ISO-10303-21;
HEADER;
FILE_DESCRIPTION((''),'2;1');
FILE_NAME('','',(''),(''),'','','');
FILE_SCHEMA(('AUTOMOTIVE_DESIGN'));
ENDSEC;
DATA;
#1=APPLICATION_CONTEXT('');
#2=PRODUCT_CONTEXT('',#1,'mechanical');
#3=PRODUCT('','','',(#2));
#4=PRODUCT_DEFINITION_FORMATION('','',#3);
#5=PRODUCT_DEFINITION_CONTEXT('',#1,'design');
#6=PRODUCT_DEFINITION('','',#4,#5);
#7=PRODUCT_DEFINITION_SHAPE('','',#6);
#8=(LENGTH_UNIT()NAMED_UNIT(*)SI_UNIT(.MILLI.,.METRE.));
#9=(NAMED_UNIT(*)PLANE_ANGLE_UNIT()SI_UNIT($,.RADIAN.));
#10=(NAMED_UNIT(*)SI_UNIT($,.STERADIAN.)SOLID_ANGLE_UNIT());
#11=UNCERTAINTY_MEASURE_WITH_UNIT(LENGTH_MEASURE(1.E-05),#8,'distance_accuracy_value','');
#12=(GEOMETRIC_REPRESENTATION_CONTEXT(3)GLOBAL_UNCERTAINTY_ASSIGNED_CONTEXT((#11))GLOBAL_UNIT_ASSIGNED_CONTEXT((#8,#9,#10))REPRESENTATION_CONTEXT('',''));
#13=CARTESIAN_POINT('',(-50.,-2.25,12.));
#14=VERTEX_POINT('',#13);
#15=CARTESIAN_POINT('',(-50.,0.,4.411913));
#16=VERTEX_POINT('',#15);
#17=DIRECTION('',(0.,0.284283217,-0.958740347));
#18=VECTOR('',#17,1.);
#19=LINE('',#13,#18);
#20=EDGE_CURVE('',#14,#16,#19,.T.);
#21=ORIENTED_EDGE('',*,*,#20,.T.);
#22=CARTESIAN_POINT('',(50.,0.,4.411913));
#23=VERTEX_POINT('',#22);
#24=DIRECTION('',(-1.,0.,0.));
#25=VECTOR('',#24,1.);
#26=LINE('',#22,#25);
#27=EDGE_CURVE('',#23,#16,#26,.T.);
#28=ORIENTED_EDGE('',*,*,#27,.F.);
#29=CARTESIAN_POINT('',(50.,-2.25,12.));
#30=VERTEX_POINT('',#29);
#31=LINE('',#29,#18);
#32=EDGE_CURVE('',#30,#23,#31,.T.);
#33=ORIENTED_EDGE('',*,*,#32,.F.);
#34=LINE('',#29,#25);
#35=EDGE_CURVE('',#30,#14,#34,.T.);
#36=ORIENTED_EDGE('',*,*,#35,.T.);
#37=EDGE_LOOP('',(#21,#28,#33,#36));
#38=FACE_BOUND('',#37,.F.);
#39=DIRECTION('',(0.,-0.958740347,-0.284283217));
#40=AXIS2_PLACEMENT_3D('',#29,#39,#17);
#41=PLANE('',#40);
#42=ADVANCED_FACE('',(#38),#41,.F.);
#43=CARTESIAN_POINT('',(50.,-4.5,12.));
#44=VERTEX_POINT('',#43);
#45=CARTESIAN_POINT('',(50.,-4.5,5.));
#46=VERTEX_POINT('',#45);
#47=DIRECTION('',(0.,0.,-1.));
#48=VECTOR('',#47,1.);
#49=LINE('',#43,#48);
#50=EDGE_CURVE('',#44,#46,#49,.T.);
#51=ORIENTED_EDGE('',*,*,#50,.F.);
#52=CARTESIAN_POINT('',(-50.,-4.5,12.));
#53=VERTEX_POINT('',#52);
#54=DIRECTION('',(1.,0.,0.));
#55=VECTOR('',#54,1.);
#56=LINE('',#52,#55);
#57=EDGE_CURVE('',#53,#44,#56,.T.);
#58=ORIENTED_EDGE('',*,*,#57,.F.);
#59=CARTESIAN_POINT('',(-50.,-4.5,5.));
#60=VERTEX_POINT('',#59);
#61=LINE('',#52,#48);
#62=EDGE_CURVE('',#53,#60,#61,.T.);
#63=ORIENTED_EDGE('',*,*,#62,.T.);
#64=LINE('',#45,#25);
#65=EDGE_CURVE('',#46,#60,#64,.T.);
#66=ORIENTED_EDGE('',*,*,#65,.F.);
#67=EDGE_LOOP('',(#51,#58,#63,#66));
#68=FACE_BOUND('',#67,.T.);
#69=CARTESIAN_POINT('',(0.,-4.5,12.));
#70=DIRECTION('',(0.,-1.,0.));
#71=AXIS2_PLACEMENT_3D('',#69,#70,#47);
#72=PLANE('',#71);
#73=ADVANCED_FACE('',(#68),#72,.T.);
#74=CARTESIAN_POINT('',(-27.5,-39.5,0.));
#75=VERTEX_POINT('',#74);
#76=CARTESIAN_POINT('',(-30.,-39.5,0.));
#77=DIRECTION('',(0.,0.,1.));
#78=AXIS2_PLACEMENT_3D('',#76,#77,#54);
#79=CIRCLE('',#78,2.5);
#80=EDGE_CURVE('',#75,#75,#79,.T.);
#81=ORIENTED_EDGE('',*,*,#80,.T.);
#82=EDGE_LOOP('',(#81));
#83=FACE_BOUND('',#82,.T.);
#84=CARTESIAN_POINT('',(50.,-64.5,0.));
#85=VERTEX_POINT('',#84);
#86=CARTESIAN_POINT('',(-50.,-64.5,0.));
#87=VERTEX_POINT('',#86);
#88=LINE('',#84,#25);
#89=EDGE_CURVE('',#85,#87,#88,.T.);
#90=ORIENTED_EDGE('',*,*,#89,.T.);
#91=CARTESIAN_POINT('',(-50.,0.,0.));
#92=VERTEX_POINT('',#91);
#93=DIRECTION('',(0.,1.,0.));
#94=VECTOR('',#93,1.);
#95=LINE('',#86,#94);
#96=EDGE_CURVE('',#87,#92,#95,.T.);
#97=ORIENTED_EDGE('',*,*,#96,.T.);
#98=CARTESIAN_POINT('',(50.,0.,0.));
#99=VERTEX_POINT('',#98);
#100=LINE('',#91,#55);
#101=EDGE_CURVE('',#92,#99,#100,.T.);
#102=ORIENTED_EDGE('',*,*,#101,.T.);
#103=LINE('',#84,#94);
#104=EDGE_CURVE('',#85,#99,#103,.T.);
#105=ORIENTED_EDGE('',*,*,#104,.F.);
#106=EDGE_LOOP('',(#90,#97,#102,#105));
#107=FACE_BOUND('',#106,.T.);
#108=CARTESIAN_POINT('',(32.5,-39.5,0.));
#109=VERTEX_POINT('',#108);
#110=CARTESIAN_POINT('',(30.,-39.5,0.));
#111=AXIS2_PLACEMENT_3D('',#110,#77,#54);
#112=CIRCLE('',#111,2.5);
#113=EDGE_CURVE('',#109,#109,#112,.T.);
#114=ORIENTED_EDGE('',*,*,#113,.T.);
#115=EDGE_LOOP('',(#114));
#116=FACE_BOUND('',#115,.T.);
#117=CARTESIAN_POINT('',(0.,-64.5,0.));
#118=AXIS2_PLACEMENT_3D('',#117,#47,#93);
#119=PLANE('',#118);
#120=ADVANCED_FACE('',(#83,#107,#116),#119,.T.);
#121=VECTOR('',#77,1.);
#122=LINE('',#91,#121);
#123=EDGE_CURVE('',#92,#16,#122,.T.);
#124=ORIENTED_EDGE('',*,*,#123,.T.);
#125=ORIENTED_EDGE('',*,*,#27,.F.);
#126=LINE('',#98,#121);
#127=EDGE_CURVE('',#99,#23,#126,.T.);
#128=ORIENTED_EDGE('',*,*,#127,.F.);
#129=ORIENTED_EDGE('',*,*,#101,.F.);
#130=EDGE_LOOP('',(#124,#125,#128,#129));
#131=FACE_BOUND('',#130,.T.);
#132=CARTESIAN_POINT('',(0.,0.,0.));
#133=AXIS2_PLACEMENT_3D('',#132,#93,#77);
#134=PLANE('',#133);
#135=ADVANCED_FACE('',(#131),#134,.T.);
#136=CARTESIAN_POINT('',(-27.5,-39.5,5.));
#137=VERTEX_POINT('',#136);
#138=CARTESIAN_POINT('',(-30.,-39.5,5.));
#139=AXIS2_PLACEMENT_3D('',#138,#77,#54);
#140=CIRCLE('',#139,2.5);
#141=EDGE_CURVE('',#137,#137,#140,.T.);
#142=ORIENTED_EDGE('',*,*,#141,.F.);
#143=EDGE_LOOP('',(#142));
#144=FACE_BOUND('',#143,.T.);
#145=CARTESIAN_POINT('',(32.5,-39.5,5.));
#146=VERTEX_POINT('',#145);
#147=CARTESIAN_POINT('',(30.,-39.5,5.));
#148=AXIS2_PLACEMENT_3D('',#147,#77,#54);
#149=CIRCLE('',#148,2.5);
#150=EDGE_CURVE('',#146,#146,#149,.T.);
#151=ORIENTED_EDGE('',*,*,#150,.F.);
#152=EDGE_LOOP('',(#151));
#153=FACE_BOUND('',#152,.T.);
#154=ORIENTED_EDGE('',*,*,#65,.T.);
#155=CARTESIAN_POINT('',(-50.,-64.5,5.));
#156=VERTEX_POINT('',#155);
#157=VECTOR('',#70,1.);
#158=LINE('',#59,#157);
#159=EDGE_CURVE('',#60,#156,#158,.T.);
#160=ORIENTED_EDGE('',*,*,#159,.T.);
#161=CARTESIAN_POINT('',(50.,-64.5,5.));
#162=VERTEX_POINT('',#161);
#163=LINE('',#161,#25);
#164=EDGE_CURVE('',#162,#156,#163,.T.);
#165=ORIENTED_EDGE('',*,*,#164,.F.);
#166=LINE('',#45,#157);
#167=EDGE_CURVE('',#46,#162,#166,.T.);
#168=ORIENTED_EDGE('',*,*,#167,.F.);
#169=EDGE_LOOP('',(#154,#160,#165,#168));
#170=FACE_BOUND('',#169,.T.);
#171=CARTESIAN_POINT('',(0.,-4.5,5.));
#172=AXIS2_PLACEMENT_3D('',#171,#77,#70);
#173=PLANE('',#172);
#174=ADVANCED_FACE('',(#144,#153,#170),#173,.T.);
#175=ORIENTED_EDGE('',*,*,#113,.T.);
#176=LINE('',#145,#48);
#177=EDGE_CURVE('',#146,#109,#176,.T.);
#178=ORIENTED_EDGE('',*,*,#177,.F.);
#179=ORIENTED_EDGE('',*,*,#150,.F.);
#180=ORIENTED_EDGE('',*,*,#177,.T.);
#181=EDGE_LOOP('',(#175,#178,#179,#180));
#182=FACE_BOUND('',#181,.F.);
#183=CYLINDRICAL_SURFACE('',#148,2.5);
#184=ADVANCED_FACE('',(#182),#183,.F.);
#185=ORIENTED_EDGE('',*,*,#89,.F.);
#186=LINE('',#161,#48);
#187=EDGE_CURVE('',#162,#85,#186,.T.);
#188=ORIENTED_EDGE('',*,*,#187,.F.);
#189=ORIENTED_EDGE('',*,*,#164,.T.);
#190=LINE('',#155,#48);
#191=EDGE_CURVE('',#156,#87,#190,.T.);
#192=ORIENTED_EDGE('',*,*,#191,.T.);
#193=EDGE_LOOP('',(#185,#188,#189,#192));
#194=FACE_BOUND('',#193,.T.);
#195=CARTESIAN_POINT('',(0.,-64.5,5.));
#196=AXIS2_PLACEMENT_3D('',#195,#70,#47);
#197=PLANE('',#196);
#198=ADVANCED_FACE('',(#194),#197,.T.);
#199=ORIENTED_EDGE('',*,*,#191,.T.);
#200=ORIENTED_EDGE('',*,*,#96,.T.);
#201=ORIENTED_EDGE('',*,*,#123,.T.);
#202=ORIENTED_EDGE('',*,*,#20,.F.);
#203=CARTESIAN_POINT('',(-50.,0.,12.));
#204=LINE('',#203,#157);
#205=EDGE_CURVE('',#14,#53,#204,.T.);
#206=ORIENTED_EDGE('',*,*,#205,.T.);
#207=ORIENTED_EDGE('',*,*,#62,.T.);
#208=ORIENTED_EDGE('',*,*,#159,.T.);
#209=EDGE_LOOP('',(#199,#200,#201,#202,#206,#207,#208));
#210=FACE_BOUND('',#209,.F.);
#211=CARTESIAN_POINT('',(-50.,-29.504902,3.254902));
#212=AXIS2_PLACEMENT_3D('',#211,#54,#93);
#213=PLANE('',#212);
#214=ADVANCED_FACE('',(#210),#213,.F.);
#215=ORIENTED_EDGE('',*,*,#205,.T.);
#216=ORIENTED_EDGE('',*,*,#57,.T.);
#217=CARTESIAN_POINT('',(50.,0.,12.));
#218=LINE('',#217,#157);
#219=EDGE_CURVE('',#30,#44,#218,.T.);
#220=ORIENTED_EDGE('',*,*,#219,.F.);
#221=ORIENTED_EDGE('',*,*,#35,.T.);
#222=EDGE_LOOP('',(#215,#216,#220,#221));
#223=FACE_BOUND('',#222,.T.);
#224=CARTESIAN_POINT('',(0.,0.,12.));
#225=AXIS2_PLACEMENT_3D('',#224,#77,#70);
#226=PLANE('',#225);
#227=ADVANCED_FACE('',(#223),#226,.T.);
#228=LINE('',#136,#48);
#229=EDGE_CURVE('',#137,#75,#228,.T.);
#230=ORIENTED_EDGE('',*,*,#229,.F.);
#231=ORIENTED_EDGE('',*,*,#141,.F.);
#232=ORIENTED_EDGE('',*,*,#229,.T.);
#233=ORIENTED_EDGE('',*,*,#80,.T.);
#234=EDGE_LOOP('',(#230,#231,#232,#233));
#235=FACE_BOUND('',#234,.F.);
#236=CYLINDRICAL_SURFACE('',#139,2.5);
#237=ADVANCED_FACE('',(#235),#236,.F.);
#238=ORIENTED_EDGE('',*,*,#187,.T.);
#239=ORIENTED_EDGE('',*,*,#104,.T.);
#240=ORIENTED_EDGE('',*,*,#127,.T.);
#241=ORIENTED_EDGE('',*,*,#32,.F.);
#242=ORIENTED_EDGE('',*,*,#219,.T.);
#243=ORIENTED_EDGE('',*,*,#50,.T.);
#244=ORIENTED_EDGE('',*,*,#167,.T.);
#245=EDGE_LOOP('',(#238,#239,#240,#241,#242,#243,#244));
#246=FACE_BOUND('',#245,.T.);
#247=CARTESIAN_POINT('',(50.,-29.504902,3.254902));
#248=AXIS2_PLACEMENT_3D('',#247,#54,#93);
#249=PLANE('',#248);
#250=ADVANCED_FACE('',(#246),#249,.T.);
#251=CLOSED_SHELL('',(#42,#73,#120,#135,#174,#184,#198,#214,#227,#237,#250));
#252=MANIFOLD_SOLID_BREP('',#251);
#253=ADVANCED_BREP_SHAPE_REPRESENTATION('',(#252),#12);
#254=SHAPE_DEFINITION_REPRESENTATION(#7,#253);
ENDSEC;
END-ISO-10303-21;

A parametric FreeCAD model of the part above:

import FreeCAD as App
import Part
import Sketcher
Q = App.Units.Quantity


def add_polygon(sketch, points):
    """Adds a closed chain of lines whose ends are joined by coincident constraints."""
    first, n = sketch.GeometryCount, len(points)
    for a, b in zip(points, points[1:] + points[:1]):
        sketch.addGeometry(Part.LineSegment(App.Vector(*a, 0), App.Vector(*b, 0)), False)
    for i in range(n):
        sketch.addConstraint(Sketcher.Constraint("Coincident", first + i, 2, first + (i + 1) % n, 1))

doc = App.newDocument("Part")
body = doc.addObject("PartDesign::Body", "Body")

# Sketch on YZ plane
sketch1 = body.newObject("Sketcher::SketchObject", "Sketch")
sketch1.AttachmentSupport = (doc.getObject("YZ_Plane"), [""])
sketch1.MapMode = "FlatFace"
add_polygon(sketch1, [(-64.5, 0), (0, 0), (0, 12), (-4.5, 12), (-4.5, 5), (-64.5, 5)])  # lines 0-5
sketch1.addConstraint([
    Sketcher.Constraint("Horizontal", 0),
    Sketcher.Constraint("Vertical", 1),
    Sketcher.Constraint("Horizontal", 2),
    Sketcher.Constraint("Vertical", 3),
    Sketcher.Constraint("Horizontal", 4),
    Sketcher.Constraint("Vertical", 5),
    Sketcher.Constraint("Coincident", 0, 2, -1, 1),
    Sketcher.Constraint("DistanceX", 4, 2, 4, 1, Q("60 mm")),
    Sketcher.Constraint("DistanceY", 1, 1, 1, 2, Q("12 mm")),
    Sketcher.Constraint("DistanceY", 3, 2, 3, 1, Q("7 mm")),
    Sketcher.Constraint("DistanceX", 0, 1, 0, 2, Q("64.5 mm")),
])
pad1 = body.newObject("PartDesign::Pad", "Pad")
pad1.Profile = sketch1
pad1.Length = 100
pad1.Midplane = True

# Sketch on YZ plane
sketch2 = body.newObject("Sketcher::SketchObject", "Sketch001")
sketch2.AttachmentSupport = (doc.getObject("YZ_Plane"), [""])
sketch2.MapMode = "FlatFace"
sketch2.AttachmentOffset = App.Placement(App.Vector(0, 0, 50), App.Rotation())
add_polygon(sketch2, [(0, 12), (-2.25, 12), (0, 4.411913)])  # lines 0-2
sketch2.addConstraint([
    Sketcher.Constraint("Horizontal", 0),
    Sketcher.Constraint("Vertical", 2),
    Sketcher.Constraint("PointOnObject", 1, 2, -2),
    Sketcher.Constraint("DistanceY", -1, 1, 0, 2, Q("12 mm")),
    Sketcher.Constraint("DistanceX", 0, 2, 0, 1, Q("2.25 mm")),
    Sketcher.Constraint("DistanceY", 2, 1, 2, 2, Q("7.588087 mm")),
])
pocket1 = body.newObject("PartDesign::Pocket", "Pocket")
pocket1.Profile = sketch2
pocket1.Type = "ThroughAll"

# Sketch on XY plane
sketch3 = body.newObject("Sketcher::SketchObject", "Sketch002")
sketch3.AttachmentSupport = (doc.getObject("XY_Plane"), [""])
sketch3.MapMode = "FlatFace"
sketch3.AttachmentOffset = App.Placement(App.Vector(0, 0, 5), App.Rotation())
sketch3.addGeometry([
    Part.Circle(App.Vector(-30, -39.5, 0), App.Vector(0, 0, 1), 2.5),
    Part.Circle(App.Vector(30, -39.5, 0), App.Vector(0, 0, 1), 2.5),
], False)
sketch3.addConstraint([
    Sketcher.Constraint("Equal", 0, 1),
    Sketcher.Constraint("Symmetric", 0, 3, 1, 3, -2),
    Sketcher.Constraint("Diameter", 0, Q("5 mm")),
    Sketcher.Constraint("DistanceX", 0, 3, -1, 1, Q("30 mm")),
    Sketcher.Constraint("DistanceY", 0, 3, -1, 1, Q("39.5 mm")),
])
pocket2 = body.newObject("PartDesign::Pocket", "Pocket001")
pocket2.Profile = sketch3
pocket2.Type = "ThroughAll"

doc.recompute()
